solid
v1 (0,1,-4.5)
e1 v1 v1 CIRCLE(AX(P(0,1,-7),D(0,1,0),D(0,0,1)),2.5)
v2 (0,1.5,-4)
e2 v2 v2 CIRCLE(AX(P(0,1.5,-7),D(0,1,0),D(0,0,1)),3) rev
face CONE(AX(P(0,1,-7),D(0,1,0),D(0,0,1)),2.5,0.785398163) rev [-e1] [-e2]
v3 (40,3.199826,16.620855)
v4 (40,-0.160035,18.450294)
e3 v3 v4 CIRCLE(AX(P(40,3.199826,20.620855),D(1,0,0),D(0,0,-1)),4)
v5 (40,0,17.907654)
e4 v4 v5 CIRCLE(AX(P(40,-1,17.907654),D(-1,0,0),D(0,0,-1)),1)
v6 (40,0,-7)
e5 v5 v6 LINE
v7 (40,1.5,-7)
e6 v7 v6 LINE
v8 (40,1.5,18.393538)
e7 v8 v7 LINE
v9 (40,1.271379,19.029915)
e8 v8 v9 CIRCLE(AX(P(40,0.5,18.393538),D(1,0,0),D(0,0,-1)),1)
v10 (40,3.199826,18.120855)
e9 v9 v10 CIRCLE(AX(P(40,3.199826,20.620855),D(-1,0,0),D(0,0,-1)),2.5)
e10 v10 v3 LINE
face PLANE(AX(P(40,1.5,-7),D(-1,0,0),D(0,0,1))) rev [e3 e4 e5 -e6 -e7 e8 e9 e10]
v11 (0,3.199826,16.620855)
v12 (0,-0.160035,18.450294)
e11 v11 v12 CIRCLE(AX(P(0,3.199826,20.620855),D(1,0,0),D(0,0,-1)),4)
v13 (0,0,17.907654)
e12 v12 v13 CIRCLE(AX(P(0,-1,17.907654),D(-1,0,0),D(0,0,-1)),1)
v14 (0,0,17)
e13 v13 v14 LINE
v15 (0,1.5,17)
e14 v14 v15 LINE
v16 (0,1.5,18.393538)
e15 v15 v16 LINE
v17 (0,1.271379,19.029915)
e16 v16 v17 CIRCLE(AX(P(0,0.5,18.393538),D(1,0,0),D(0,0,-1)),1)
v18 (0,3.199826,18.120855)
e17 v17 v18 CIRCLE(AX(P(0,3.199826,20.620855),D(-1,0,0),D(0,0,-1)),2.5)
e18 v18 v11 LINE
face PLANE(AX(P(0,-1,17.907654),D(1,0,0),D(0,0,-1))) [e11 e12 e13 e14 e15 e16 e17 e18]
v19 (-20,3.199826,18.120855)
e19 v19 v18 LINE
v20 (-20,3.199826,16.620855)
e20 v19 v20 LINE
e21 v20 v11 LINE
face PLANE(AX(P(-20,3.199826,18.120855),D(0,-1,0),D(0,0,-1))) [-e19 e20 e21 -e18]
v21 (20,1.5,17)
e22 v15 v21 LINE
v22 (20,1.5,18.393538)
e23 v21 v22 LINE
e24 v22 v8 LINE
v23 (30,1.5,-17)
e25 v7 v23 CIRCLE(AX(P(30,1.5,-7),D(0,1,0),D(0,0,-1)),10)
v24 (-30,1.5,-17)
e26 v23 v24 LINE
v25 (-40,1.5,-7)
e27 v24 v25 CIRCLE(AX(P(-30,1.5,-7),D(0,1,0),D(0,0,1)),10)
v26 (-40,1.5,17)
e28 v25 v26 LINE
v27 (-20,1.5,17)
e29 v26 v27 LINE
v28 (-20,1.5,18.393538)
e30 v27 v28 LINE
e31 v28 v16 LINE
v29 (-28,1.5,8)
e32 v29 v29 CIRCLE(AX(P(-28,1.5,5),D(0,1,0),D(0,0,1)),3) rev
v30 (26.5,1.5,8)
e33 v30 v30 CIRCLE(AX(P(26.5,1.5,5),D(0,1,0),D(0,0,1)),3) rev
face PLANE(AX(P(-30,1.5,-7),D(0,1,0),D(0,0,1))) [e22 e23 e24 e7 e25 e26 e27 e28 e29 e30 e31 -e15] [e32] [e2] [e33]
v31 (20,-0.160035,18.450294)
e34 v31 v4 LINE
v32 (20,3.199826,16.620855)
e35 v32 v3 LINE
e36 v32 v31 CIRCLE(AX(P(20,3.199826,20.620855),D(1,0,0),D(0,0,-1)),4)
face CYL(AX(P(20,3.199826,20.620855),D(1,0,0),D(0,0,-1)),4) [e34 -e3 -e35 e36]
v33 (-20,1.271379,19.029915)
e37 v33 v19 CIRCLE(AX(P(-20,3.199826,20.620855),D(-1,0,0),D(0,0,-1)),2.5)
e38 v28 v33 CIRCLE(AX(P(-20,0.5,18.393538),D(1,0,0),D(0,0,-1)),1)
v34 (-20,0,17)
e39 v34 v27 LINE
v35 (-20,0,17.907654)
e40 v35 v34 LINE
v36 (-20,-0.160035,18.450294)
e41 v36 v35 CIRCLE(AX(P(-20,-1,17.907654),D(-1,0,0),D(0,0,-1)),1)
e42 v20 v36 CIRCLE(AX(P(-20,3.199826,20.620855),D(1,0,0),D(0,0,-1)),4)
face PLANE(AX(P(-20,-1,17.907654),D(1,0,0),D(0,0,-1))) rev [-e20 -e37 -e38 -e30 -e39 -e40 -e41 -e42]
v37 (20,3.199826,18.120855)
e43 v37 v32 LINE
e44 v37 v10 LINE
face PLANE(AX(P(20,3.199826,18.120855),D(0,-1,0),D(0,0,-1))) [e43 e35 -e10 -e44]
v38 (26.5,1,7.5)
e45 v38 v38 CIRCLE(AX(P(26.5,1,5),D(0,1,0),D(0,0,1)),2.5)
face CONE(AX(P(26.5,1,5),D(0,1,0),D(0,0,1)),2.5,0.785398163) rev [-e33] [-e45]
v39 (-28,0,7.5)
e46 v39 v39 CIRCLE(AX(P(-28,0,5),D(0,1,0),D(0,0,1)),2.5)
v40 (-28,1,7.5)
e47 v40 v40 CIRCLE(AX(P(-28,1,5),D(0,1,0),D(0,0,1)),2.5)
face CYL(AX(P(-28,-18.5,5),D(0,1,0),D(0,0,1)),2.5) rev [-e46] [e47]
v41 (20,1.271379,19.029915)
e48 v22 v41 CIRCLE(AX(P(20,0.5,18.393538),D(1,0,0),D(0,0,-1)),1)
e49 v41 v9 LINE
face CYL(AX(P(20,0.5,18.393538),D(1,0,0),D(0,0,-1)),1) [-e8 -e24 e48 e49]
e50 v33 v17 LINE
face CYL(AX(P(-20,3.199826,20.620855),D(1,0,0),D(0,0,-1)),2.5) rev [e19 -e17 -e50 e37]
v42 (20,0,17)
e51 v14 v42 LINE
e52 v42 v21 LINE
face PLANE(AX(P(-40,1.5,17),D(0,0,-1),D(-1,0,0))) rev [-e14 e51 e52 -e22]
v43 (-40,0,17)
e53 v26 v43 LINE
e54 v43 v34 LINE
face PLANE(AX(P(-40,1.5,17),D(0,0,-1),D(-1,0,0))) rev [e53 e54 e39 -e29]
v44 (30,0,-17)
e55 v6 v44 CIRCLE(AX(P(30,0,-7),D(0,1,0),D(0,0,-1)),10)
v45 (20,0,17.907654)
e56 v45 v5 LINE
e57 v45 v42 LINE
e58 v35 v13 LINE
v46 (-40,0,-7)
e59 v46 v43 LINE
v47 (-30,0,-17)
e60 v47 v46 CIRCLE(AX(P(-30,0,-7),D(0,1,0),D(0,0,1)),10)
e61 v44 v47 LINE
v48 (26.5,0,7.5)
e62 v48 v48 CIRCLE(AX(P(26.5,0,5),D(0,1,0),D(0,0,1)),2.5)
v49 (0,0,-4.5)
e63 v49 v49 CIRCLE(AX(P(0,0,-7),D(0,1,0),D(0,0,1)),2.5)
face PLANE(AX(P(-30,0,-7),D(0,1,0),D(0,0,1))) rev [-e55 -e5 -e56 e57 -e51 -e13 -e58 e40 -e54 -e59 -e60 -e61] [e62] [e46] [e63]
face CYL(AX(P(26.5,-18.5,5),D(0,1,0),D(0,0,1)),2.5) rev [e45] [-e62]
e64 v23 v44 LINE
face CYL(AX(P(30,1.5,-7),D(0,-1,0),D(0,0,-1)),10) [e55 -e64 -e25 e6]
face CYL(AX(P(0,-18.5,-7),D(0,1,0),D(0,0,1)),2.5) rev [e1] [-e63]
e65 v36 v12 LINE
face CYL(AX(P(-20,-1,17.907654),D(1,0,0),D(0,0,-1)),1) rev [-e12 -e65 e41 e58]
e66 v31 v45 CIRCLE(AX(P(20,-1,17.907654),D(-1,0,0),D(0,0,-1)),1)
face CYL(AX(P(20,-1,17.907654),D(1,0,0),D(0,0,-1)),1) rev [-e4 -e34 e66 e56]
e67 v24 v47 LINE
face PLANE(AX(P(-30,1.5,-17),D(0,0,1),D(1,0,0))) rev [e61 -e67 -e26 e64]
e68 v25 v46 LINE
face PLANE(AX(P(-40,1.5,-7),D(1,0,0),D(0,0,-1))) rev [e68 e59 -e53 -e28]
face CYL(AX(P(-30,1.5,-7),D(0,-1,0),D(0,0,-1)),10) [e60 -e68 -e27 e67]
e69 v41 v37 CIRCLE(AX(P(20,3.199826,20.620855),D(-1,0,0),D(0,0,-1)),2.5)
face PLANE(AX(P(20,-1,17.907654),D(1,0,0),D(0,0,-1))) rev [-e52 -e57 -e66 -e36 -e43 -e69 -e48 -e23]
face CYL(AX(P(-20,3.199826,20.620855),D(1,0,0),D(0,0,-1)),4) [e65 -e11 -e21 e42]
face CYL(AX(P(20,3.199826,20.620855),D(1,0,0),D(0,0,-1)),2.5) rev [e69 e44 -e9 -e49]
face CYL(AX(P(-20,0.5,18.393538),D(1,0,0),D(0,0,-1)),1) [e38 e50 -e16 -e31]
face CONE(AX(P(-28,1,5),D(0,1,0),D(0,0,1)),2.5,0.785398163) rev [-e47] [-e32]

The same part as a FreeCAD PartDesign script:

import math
import FreeCAD as App
import Part
import Sketcher
Q = App.Units.Quantity


def edges_at(feature, points):
    """Names of the edges that pass closest to the given points."""
    edges = feature.Shape.Edges
    near = lambda p: min(range(len(edges)), key=lambda i: edges[i].distToShape(Part.Vertex(*p))[0])
    return sorted({f"Edge{near(p) + 1}" for p in points})

doc = App.newDocument("Part")
params = doc.addObject("Spreadsheet::Sheet", "Params")
for row, (alias, value) in enumerate([
    ("sketch1_radius", "10 mm"),
    ("sketch1_width", "60 mm"),
    ("sketch1_height", "24 mm"),
    ("pad1_length", "1.5 mm"),
    ("sketch2_radius", "1 mm"),
    ("sketch2_radius2", "4 mm"),
    ("sketch2_radius3", "2.5 mm"),
    ("pad2_length", "20 mm"),
    ("linearpattern_pitch", "40 mm"),
    ("sketch3_diameter", "5 mm"),
    ("pocket1_length", "20 mm"),
    ("chamfer_size", "0.5 mm"),
], start=1):
    params.set(f"A{row}", alias)
    params.set(f"B{row}", "=" + value)
    params.setAlias(f"B{row}", alias)

body = doc.addObject("PartDesign::Body", "Body")

# Sketch on XZ plane
sketch1 = body.newObject("Sketcher::SketchObject", "Sketch")
sketch1.AttachmentSupport = (doc.getObject("XZ_Plane"), [""])
sketch1.MapMode = "FlatFace"
sketch1.addGeometry(Part.LineSegment(App.Vector(30, -17, 0), App.Vector(-30, -17, 0)), False)
sketch1.addGeometry(Part.ArcOfCircle(Part.Circle(App.Vector(-30, -7, 0), App.Vector(0, 0, 1), 10), math.radians(180), math.radians(270)), False)
sketch1.addGeometry(Part.LineSegment(App.Vector(-40, -7, 0), App.Vector(-40, 17, 0)), False)
sketch1.addGeometry(Part.LineSegment(App.Vector(-40, 17, 0), App.Vector(40, 17, 0)), False)
sketch1.addGeometry(Part.LineSegment(App.Vector(40, 17, 0), App.Vector(40, -7, 0)), False)
sketch1.addGeometry(Part.ArcOfCircle(Part.Circle(App.Vector(30, -7, 0), App.Vector(0, 0, 1), 10), math.radians(-90), math.radians(0)), False)
sketch1.addConstraint(Sketcher.Constraint("Tangent", 0, 2, 1, 2))
sketch1.addConstraint(Sketcher.Constraint("Tangent", 1, 1, 2, 1))
sketch1.addConstraint(Sketcher.Constraint("Coincident", 2, 2, 3, 1))
sketch1.addConstraint(Sketcher.Constraint("Coincident", 3, 2, 4, 1))
sketch1.addConstraint(Sketcher.Constraint("Tangent", 4, 2, 5, 2))
sketch1.addConstraint(Sketcher.Constraint("Tangent", 5, 1, 0, 1))
sketch1.addConstraint(Sketcher.Constraint("Horizontal", 0))
sketch1.addConstraint(Sketcher.Constraint("Vertical", 2))
sketch1.addConstraint(Sketcher.Constraint("Horizontal", 3))
sketch1.addConstraint(Sketcher.Constraint("Vertical", 4))
sketch1.addConstraint(Sketcher.Constraint("Equal", 1, 5))
sketch1.addConstraint(Sketcher.Constraint("Radius", 1, Q("10 mm")))
sketch1.addConstraint(Sketcher.Constraint("DistanceX", 0, 2, 0, 1, Q("60 mm")))
sketch1.addConstraint(Sketcher.Constraint("DistanceY", 2, 1, 2, 2, Q("24 mm")))
sketch1.addConstraint(Sketcher.Constraint("DistanceX", 1, 3, -1, 1, Q("30 mm")))
sketch1.addConstraint(Sketcher.Constraint("DistanceY", 1, 3, -1, 1, Q("7 mm")))
sketch1.setExpression("Constraints[11]", "Params.sketch1_radius")
sketch1.setExpression("Constraints[12]", "Params.sketch1_width")
sketch1.setExpression("Constraints[13]", "Params.sketch1_height")
pad1 = body.newObject("PartDesign::Pad", "Pad")
pad1.Profile = sketch1
pad1.setExpression("Length", "Params.pad1_length")
pad1.Reversed = True

# Sketch on YZ plane
sketch2 = body.newObject("Sketcher::SketchObject", "Sketch001")
sketch2.AttachmentSupport = (doc.getObject("YZ_Plane"), [""])
sketch2.MapMode = "FlatFace"
sketch2.AttachmentOffset = App.Placement(App.Vector(0, 0, 40), App.Rotation())
sketch2.addGeometry(Part.LineSegment(App.Vector(0, 17.9, 0), App.Vector(0, 17, 0)), False)
sketch2.addGeometry(Part.LineSegment(App.Vector(0, 17, 0), App.Vector(1.5, 17, 0)), False)
sketch2.addGeometry(Part.LineSegment(App.Vector(1.5, 17, 0), App.Vector(1.5, 18.4, 0)), False)
sketch2.addGeometry(Part.ArcOfCircle(Part.Circle(App.Vector(0.5, 18.4, 0), App.Vector(0, 0, 1), 1), math.radians(0), math.radians(40)), False)
sketch2.addGeometry(Part.ArcOfCircle(Part.Circle(App.Vector(3.2, 20.6, 0), App.Vector(0, 0, 1), 2.5), math.radians(-90), math.radians(220)), False)
sketch2.addGeometry(Part.LineSegment(App.Vector(3.2, 18.1, 0), App.Vector(3.2, 16.6, 0)), False)
sketch2.addGeometry(Part.ArcOfCircle(Part.Circle(App.Vector(3.2, 20.6, 0), App.Vector(0, 0, 1), 4), math.radians(-90), math.radians(213)), False)
sketch2.addGeometry(Part.ArcOfCircle(Part.Circle(App.Vector(-1, 17.9, 0), App.Vector(0, 0, 1), 1), math.radians(0), math.radians(33)), False)
sketch2.addConstraint(Sketcher.Constraint("Coincident", 0, 2, 1, 1))
sketch2.addConstraint(Sketcher.Constraint("Coincident", 1, 2, 2, 1))
sketch2.addConstraint(Sketcher.Constraint("Tangent", 2, 2, 3, 1))
sketch2.addConstraint(Sketcher.Constraint("Tangent", 3, 2, 4, 2))
sketch2.addConstraint(Sketcher.Constraint("Coincident", 4, 1, 5, 1))
sketch2.addConstraint(Sketcher.Constraint("Coincident", 5, 2, 6, 1))
sketch2.addConstraint(Sketcher.Constraint("Tangent", 6, 2, 7, 2))
sketch2.addConstraint(Sketcher.Constraint("Tangent", 7, 1, 0, 1))
sketch2.addConstraint(Sketcher.Constraint("Vertical", 0))
sketch2.addConstraint(Sketcher.Constraint("Horizontal", 1))
sketch2.addConstraint(Sketcher.Constraint("Vertical", 2))
sketch2.addConstraint(Sketcher.Constraint("Vertical", 5))
sketch2.addConstraint(Sketcher.Constraint("Coincident", 6, 3, 4, 3))
sketch2.addConstraint(Sketcher.Constraint("Equal", 3, 7))
sketch2.addConstraint(Sketcher.Constraint("PointOnObject", 0, 2, -2))
sketch2.addConstraint(Sketcher.Constraint("Vertical", 6, 3, 4, 1))
sketch2.addConstraint(Sketcher.Constraint("Equal", 1, 5))
sketch2.addConstraint(Sketcher.Constraint("Radius", 3, Q("1 mm")))
sketch2.addConstraint(Sketcher.Constraint("Radius", 6, Q("4 mm")))
sketch2.addConstraint(Sketcher.Constraint("Radius", 4, Q("2.5 mm")))
sketch2.addConstraint(Sketcher.Constraint("DistanceY", -1, 1, 0, 2, Q("17 mm")))
sketch2.addConstraint(Sketcher.Constraint("DistanceY", 2, 1, 2, 2, Q("1.393538 mm")))
sketch2.addConstraint(Sketcher.Constraint("DistanceY", 7, 3, 4, 3, Q("2.713202 mm")))
sketch2.setExpression("Constraints[17]", "Params.sketch2_radius")
sketch2.setExpression("Constraints[18]", "Params.sketch2_radius2")
sketch2.setExpression("Constraints[19]", "Params.sketch2_radius3")
pad2 = body.newObject("PartDesign::Pad", "Pad001")
pad2.Profile = sketch2
pad2.setExpression("Length", "Params.pad2_length")
pad2.Reversed = True
doc.recompute()

linearpattern = body.newObject("PartDesign::LinearPattern", "LinearPattern")
linearpattern.Originals = [pad2]
linearpattern.Direction = (doc.getObject("X_Axis"), [""])
linearpattern.Mode = "offset"
linearpattern.setExpression("Offset", "Params.linearpattern_pitch")
linearpattern.Occurrences = 2
linearpattern.Reversed = True
body.Tip = linearpattern

# Sketch on XZ plane
sketch3 = body.newObject("Sketcher::SketchObject", "Sketch002")
sketch3.AttachmentSupport = (doc.getObject("XZ_Plane"), [""])
sketch3.MapMode = "FlatFace"
sketch3.AttachmentOffset = App.Placement(App.Vector(0, 0, -1.5), App.Rotation())
sketch3.addGeometry(Part.Circle(App.Vector(-28, 5, 0), App.Vector(0, 0, 1), 2.5), False)
sketch3.addGeometry(Part.Circle(App.Vector(0, -7, 0), App.Vector(0, 0, 1), 2.5), False)
sketch3.addGeometry(Part.Circle(App.Vector(26.5, 5, 0), App.Vector(0, 0, 1), 2.5), False)
sketch3.addConstraint(Sketcher.Constraint("Equal", 0, 1))
sketch3.addConstraint(Sketcher.Constraint("Equal", 1, 2))
sketch3.addConstraint(Sketcher.Constraint("PointOnObject", 1, 3, -2))
sketch3.addConstraint(Sketcher.Constraint("Horizontal", 0, 3, 2, 3))
sketch3.addConstraint(Sketcher.Constraint("Diameter", 0, Q("5 mm")))
sketch3.addConstraint(Sketcher.Constraint("DistanceX", 0, 3, -1, 1, Q("28 mm")))
sketch3.addConstraint(Sketcher.Constraint("DistanceY", -1, 1, 0, 3, Q("5 mm")))
sketch3.addConstraint(Sketcher.Constraint("DistanceY", 1, 3, -1, 1, Q("7 mm")))
sketch3.addConstraint(Sketcher.Constraint("DistanceX", -1, 1, 2, 3, Q("26.5 mm")))
sketch3.setExpression("Constraints[4]", "Params.sketch3_diameter")
pocket1 = body.newObject("PartDesign::Pocket", "Pocket")
pocket1.Profile = sketch3
pocket1.setExpression("Length", "Params.pocket1_length")
pocket1.Reversed = True
doc.recompute()

chamfer = body.newObject("PartDesign::Chamfer", "Chamfer")
chamfer.Base = (pocket1, edges_at(pocket1, [(-28, 1.5, 2.5), (0, 1.5, -9.5), (26.5, 1.5, 2.5)]))
chamfer.setExpression("Size", "Params.chamfer_size")

doc.recompute()
